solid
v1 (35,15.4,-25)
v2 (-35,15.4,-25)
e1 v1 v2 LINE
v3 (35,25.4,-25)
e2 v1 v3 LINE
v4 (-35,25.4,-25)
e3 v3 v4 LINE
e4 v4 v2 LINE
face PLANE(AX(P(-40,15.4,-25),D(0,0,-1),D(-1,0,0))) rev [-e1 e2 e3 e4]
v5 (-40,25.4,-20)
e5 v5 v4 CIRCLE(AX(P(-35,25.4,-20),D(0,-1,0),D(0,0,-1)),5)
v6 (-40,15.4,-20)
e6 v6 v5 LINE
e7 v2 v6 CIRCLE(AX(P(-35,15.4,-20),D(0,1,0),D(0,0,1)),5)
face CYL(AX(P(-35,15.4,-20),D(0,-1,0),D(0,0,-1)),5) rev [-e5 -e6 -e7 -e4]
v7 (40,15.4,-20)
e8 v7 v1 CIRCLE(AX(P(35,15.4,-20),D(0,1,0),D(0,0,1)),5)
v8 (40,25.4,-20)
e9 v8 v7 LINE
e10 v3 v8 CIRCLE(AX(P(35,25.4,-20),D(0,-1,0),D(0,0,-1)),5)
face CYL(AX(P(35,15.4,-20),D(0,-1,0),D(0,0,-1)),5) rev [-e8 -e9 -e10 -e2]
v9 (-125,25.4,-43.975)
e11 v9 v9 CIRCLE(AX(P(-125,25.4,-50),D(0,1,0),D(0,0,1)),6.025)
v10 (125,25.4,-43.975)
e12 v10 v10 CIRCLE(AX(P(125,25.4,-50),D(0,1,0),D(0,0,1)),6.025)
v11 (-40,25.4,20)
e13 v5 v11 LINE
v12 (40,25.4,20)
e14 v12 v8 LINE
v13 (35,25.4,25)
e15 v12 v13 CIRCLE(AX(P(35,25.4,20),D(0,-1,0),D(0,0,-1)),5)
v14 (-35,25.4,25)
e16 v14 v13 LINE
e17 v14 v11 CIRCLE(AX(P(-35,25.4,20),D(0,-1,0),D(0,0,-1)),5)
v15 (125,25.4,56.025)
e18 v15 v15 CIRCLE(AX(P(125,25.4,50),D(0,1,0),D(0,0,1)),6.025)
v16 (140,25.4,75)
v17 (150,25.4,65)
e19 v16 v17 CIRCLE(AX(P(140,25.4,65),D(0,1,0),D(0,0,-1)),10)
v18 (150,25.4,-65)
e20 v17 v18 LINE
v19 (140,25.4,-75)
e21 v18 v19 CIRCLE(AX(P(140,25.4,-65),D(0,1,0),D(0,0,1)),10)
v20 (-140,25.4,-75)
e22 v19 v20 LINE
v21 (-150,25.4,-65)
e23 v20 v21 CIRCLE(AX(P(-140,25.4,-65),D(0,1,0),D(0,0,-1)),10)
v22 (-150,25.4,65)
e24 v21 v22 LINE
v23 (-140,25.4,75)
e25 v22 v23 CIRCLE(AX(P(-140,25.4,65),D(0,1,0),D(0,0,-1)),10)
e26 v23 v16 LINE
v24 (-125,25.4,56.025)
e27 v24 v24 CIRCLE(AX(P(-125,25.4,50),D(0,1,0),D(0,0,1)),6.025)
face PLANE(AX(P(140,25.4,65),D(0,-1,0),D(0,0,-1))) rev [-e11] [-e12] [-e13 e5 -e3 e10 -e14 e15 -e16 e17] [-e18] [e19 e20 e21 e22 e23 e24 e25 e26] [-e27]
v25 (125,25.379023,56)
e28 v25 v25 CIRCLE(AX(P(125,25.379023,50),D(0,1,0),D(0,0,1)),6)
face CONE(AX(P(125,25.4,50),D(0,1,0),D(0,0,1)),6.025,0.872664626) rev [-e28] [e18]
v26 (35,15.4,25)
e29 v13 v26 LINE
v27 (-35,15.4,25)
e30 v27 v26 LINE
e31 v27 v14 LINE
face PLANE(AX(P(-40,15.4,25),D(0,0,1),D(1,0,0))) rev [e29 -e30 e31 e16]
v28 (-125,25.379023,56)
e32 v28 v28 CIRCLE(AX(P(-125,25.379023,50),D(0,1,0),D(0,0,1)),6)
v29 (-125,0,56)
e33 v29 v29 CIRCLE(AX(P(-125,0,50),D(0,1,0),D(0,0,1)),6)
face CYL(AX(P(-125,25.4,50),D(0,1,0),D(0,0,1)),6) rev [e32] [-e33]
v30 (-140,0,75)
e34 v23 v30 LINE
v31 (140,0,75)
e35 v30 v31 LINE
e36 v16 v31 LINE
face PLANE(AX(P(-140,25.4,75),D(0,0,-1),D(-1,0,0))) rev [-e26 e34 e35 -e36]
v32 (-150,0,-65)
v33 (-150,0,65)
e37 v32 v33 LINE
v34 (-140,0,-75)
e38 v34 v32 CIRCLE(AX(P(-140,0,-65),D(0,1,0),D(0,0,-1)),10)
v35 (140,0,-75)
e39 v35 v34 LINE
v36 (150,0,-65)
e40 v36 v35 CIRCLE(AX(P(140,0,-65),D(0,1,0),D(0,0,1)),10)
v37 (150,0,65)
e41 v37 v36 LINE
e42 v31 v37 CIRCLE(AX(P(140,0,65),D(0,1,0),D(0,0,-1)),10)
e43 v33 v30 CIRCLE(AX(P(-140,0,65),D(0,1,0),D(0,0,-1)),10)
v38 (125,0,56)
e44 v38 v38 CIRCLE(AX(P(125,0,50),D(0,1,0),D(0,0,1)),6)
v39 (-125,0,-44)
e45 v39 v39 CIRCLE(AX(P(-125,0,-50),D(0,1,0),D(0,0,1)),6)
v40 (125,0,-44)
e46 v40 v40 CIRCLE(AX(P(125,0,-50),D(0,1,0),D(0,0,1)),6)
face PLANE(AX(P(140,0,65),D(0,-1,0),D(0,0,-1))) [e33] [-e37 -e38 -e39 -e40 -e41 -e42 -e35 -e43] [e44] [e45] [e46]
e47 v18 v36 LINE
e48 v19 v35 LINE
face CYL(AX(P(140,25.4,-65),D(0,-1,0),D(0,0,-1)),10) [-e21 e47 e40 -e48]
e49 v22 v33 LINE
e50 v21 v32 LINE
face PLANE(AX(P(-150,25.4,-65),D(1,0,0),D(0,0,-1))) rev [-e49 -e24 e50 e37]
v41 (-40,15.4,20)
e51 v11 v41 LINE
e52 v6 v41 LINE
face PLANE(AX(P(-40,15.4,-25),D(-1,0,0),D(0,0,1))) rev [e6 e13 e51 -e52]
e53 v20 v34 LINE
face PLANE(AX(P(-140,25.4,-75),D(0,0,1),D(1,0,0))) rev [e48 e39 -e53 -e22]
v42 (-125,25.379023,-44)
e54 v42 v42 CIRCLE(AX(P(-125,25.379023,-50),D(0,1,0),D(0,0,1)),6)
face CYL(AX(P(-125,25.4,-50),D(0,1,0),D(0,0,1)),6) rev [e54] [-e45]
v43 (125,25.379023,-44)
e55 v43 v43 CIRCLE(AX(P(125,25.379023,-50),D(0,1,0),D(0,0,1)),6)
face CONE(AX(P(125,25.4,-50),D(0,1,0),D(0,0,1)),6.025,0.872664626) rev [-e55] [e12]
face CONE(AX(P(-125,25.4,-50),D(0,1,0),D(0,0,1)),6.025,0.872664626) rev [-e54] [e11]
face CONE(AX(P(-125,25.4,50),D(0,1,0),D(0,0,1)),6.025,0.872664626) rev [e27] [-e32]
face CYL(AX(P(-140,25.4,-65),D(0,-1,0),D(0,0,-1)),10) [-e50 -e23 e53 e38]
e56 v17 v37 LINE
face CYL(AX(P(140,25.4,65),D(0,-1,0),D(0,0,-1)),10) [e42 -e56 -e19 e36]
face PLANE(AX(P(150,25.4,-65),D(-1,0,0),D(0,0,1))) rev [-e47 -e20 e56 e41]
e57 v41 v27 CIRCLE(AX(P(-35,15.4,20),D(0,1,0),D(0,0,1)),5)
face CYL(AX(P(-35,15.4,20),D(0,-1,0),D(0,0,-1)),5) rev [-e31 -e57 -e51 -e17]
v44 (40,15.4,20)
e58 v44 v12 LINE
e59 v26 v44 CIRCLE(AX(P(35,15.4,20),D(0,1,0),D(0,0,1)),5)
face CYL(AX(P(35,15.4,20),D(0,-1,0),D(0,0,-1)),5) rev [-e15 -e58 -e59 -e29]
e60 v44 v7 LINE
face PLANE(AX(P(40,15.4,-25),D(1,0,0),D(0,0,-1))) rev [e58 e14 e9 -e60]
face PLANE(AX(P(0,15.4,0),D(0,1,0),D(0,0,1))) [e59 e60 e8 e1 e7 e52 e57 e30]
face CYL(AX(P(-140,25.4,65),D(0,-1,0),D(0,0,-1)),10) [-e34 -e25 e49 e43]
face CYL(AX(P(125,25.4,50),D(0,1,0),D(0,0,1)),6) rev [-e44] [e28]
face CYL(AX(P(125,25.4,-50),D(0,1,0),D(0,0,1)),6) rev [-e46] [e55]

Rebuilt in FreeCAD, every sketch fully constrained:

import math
import FreeCAD as App
import Part
import Sketcher


def edges_at(feature, points):
    """Names of the edges that pass closest to the given points."""
    edges = feature.Shape.Edges
    near = lambda p: min(range(len(edges)), key=lambda i: edges[i].distToShape(Part.Vertex(*p))[0])
    return sorted({f"Edge{near(p) + 1}" for p in points})


def add_polygon(sketch, points):
    """Adds a closed chain of lines whose ends are joined by coincident constraints."""
    first, n = sketch.GeometryCount, len(points)
    for a, b in zip(points, points[1:] + points[:1]):
        sketch.addGeometry(Part.LineSegment(App.Vector(*a, 0), App.Vector(*b, 0)), False)
    for i in range(n):
        sketch.addConstraint(Sketcher.Constraint("Coincident", first + i, 2, first + (i + 1) % n, 1))

doc = App.newDocument("Part")
params = doc.addObject("Spreadsheet::Sheet", "Params")
for row, (alias, value) in enumerate([
    ("sketch1_radius", "10 mm"),
    ("sketch1_width", "280 mm"),
    ("sketch1_height", "130 mm"),
    ("pad1_length", "25.4 mm"),
    ("sketch2_width", "80 mm"),
    ("sketch2_height", "50 mm"),
    ("pocket1_length", "10 mm"),
    ("fillet_radius", "5 mm"),
    ("sketch3_diameter", "12 mm"),
    ("hole_diameter", "12 mm"),
    ("hole_csink_diameter", "12.05 mm"),
], start=1):
    params.set(f"A{row}", alias)
    params.set(f"B{row}", "=" + value)
    params.setAlias(f"B{row}", alias)

body = doc.addObject("PartDesign::Body", "Body")

# Sketch on XZ plane
sketch1 = body.newObject("Sketcher::SketchObject", "Sketch")
sketch1.AttachmentSupport = (doc.getObject("XZ_Plane"), [""])
sketch1.MapMode = "FlatFace"
sketch1.addGeometry([
    Part.LineSegment(App.Vector(140, -75, 0), App.Vector(-140, -75, 0)),  # 0
    Part.ArcOfCircle(Part.Circle(App.Vector(-140, -65, 0), App.Vector(0, 0, 1), 10), math.radians(180), math.radians(270)),  # 1
    Part.LineSegment(App.Vector(-150, -65, 0), App.Vector(-150, 65, 0)),  # 2
    Part.ArcOfCircle(Part.Circle(App.Vector(-140, 65, 0), App.Vector(0, 0, 1), 10), math.radians(90), math.radians(180)),  # 3
    Part.LineSegment(App.Vector(-140, 75, 0), App.Vector(140, 75, 0)),  # 4
    Part.ArcOfCircle(Part.Circle(App.Vector(140, 65, 0), App.Vector(0, 0, 1), 10), math.radians(0), math.radians(90)),  # 5
    Part.LineSegment(App.Vector(150, 65, 0), App.Vector(150, -65, 0)),  # 6
    Part.ArcOfCircle(Part.Circle(App.Vector(140, -65, 0), App.Vector(0, 0, 1), 10), math.radians(-90), math.radians(0)),  # 7
], False)
sketch1.addConstraint([
    Sketcher.Constraint("Tangent", 0, 2, 1, 2),
    Sketcher.Constraint("Tangent", 1, 1, 2, 1),
    Sketcher.Constraint("Tangent", 2, 2, 3, 2),
    Sketcher.Constraint("Tangent", 3, 1, 4, 1),
    Sketcher.Constraint("Tangent", 4, 2, 5, 2),
    Sketcher.Constraint("Tangent", 5, 1, 6, 1),
    Sketcher.Constraint("Tangent", 6, 2, 7, 2),
    Sketcher.Constraint("Tangent", 7, 1, 0, 1),
    Sketcher.Constraint("Horizontal", 0),
    Sketcher.Constraint("Vertical", 2),
    Sketcher.Constraint("Horizontal", 4),
    Sketcher.Constraint("Vertical", 6),
    Sketcher.Constraint("Equal", 1, 3),
    Sketcher.Constraint("Equal", 3, 5),
    Sketcher.Constraint("Equal", 5, 7),
    Sketcher.Constraint("Symmetric", 1, 3, 5, 3, -1, 1),
    Sketcher.Constraint("Radius", 1, 10.0),
    Sketcher.Constraint("DistanceX", 0, 2, 0, 1, 280.0),
    Sketcher.Constraint("DistanceY", 2, 1, 2, 2, 130.0),
])
sketch1.setExpression("Constraints[16]", "Params.sketch1_radius")
sketch1.setExpression("Constraints[17]", "Params.sketch1_width")
sketch1.setExpression("Constraints[18]", "Params.sketch1_height")
pad1 = body.newObject("PartDesign::Pad", "Pad")
pad1.Profile = sketch1
pad1.setExpression("Length", "Params.pad1_length")
pad1.Reversed = True

# Sketch on XZ plane
sketch2 = body.newObject("Sketcher::SketchObject", "Sketch001")
sketch2.AttachmentSupport = (doc.getObject("XZ_Plane"), [""])
sketch2.MapMode = "FlatFace"
sketch2.AttachmentOffset = App.Placement(App.Vector(0, 0, -25.4), App.Rotation())
add_polygon(sketch2, [(-40, -25), (-40, 25), (40, 25), (40, -25)])  # lines 0-3
sketch2.addConstraint([
    Sketcher.Constraint("Vertical", 0),
    Sketcher.Constraint("Horizontal", 1),
    Sketcher.Constraint("Vertical", 2),
    Sketcher.Constraint("Horizontal", 3),
    Sketcher.Constraint("Symmetric", 0, 2, 2, 2, -1, 1),
    Sketcher.Constraint("DistanceX", 1, 1, 1, 2, 80.0),
    Sketcher.Constraint("DistanceY", 0, 1, 0, 2, 50.0),
])
sketch2.setExpression("Constraints[9]", "Params.sketch2_width")
sketch2.setExpression("Constraints[10]", "Params.sketch2_height")
pocket1 = body.newObject("PartDesign::Pocket", "Pocket")
pocket1.Profile = sketch2
pocket1.setExpression("Length", "Params.pocket1_length")
pocket1.Reversed = True
doc.recompute()

fillet = body.newObject("PartDesign::Fillet", "Fillet")
fillet.Base = (pocket1, edges_at(pocket1, [
    (40, 20.4, -25),
    (40, 20.4, 25),
    (-40, 20.4, 25),
    (-40, 20.4, -25),
]))
fillet.setExpression("Radius", "Params.fillet_radius")

# Sketch on XZ plane
sketch3 = body.newObject("Sketcher::SketchObject", "Sketch002")
sketch3.AttachmentSupport = (doc.getObject("XZ_Plane"), [""])
sketch3.MapMode = "FlatFace"
sketch3.AttachmentOffset = App.Placement(App.Vector(0, 0, -25.4), App.Rotation())
sketch3.addGeometry([
    Part.Circle(App.Vector(-125, -50, 0), App.Vector(0, 0, 1), 6),
    Part.Circle(App.Vector(125, -50, 0), App.Vector(0, 0, 1), 6),
    Part.Circle(App.Vector(125, 50, 0), App.Vector(0, 0, 1), 6),
    Part.Circle(App.Vector(-125, 50, 0), App.Vector(0, 0, 1), 6),
], False)
sketch3.addConstraint([
    Sketcher.Constraint("Equal", 0, 1),
    Sketcher.Constraint("Equal", 1, 2),
    Sketcher.Constraint("Equal", 2, 3),
    Sketcher.Constraint("Symmetric", 0, 3, 2, 3, -1, 1),
    Sketcher.Constraint("Symmetric", 1, 3, 3, 3, -1, 1),
    Sketcher.Constraint("Symmetric", 0, 3, 1, 3, -2),
    Sketcher.Constraint("Diameter", 0, 12.0),
    Sketcher.Constraint("DistanceX", 0, 3, -1, 1, 125.0),
    Sketcher.Constraint("DistanceY", 0, 3, -1, 1, 50.0),
])
sketch3.setExpression("Constraints[6]", "Params.sketch3_diameter")
doc.recompute()
hole = body.newObject("PartDesign::Hole", "Hole")
hole.Profile = sketch3
hole.ThreadType = "None"
hole.setExpression("Diameter", "Params.hole_diameter")
hole.DepthType = "ThroughAll"
hole.HoleCutType = "Countersink"
hole.setExpression("HoleCutDiameter", "Params.hole_csink_diameter")
hole.HoleCutCountersinkAngle = 100
hole.Reversed = True

doc.recompute()
